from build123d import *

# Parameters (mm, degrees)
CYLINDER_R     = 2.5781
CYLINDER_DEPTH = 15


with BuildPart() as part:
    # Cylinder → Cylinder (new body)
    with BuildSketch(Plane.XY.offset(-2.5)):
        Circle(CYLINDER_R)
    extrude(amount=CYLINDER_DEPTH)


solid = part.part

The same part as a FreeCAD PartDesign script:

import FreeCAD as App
import Part
import Sketcher
from FreeCAD import Vector
Q = App.Units.Quantity

doc = App.newDocument("Part")
body = doc.addObject("PartDesign::Body", "Body")

sketch1 = body.newObject("Sketcher::SketchObject", "Sketch")
sketch1.AttachmentSupport = (doc.getObject("XY_Plane"), [""])
sketch1.MapMode = "FlatFace"
sketch1.AttachmentOffset = App.Placement(Vector(0, 0, -2.5), App.Rotation())
sketch1.addGeometry(Part.Circle(Vector(0, 0, 0), Vector(0, 0, 1), 2.6), False)
sketch1.addConstraint(Sketcher.Constraint("Coincident", 0, 3, -1, 1))
sketch1.addConstraint(Sketcher.Constraint("Diameter", 0, Q("5.1562 mm")))
pad1 = body.newObject("PartDesign::Pad", "Pad")
pad1.Profile = sketch1
pad1.Length = 15

doc.recompute()
